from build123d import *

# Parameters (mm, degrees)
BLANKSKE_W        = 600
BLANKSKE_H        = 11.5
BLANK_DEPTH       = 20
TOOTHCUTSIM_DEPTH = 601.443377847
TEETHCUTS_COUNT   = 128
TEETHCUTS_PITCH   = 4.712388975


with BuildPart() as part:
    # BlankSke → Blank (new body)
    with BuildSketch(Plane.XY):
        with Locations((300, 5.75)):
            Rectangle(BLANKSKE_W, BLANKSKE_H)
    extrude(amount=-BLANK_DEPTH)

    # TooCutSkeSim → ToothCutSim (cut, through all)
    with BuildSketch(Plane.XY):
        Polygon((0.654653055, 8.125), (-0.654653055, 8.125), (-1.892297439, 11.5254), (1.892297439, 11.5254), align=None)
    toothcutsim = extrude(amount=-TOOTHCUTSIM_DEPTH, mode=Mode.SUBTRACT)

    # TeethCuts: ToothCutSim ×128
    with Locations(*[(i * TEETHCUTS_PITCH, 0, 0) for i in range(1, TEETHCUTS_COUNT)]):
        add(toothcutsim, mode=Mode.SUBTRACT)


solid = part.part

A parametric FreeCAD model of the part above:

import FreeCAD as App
import Part
import Sketcher
Q = App.Units.Quantity


def add_polygon(sketch, points):
    """Adds a closed chain of lines whose ends are joined by coincident constraints."""
    first, n = sketch.GeometryCount, len(points)
    for a, b in zip(points, points[1:] + points[:1]):
        sketch.addGeometry(Part.LineSegment(App.Vector(*a, 0), App.Vector(*b, 0)), False)
    for i in range(n):
        sketch.addConstraint(Sketcher.Constraint("Coincident", first + i, 2, first + (i + 1) % n, 1))

doc = App.newDocument("Part")
body = doc.addObject("PartDesign::Body", "Body")

# Sketch on XY plane
sketch1 = body.newObject("Sketcher::SketchObject", "Sketch")
sketch1.AttachmentSupport = (doc.getObject("XY_Plane"), [""])
sketch1.MapMode = "FlatFace"
add_polygon(sketch1, [(0, 12), (0, 0), (600, 0), (600, 12)])  # lines 0-3
sketch1.addConstraint([
    Sketcher.Constraint("Vertical", 0),
    Sketcher.Constraint("Horizontal", 1),
    Sketcher.Constraint("Vertical", 2),
    Sketcher.Constraint("Horizontal", 3),
    Sketcher.Constraint("Coincident", 0, 2, -1, 1),
    Sketcher.Constraint("DistanceX", 1, 1, 1, 2, 600.0),
    Sketcher.Constraint("DistanceY", 0, 2, 0, 1, 11.5),
])
pad1 = body.newObject("PartDesign::Pad", "Pad")
pad1.Profile = sketch1
pad1.Length = 20
pad1.Reversed = True

# Sketch on XY plane
sketch2 = body.newObject("Sketcher::SketchObject", "Sketch001")
sketch2.AttachmentSupport = (doc.getObject("XY_Plane"), [""])
sketch2.MapMode = "FlatFace"
add_polygon(sketch2, [(-0.7, 8.1), (0.7, 8.1), (1.9, 11.5), (-1.9, 11.5)])  # lines 0-3
sketch2.addConstraint([
    Sketcher.Constraint("Horizontal", 0),
    Sketcher.Constraint("Horizontal", 2),
    Sketcher.Constraint("Equal", 1, 3),
    Sketcher.Constraint("Angle", 1, Q("70 deg")),
    Sketcher.Constraint("DistanceY", -1, 1, 0, 2, 8.125),
    Sketcher.Constraint("DistanceY", -1, 1, 1, 2, 11.5254),
    Sketcher.Constraint("DistanceX", 0, 1, 0, 2, 1.309306),
    Sketcher.Constraint("DistanceX", -1, 1, 0, 2, 0.654653),
])
pocket1 = body.newObject("PartDesign::Pocket", "Pocket")
pocket1.Profile = sketch2
pocket1.Type = "ThroughAll"
doc.recompute()

linearpattern = body.newObject("PartDesign::LinearPattern", "LinearPattern")
linearpattern.Originals = [pocket1]
linearpattern.Direction = (doc.getObject("X_Axis"), [""])
linearpattern.Mode = "offset"
linearpattern.Offset = 4.712389
linearpattern.Occurrences = 128
body.Tip = linearpattern

doc.recompute()
